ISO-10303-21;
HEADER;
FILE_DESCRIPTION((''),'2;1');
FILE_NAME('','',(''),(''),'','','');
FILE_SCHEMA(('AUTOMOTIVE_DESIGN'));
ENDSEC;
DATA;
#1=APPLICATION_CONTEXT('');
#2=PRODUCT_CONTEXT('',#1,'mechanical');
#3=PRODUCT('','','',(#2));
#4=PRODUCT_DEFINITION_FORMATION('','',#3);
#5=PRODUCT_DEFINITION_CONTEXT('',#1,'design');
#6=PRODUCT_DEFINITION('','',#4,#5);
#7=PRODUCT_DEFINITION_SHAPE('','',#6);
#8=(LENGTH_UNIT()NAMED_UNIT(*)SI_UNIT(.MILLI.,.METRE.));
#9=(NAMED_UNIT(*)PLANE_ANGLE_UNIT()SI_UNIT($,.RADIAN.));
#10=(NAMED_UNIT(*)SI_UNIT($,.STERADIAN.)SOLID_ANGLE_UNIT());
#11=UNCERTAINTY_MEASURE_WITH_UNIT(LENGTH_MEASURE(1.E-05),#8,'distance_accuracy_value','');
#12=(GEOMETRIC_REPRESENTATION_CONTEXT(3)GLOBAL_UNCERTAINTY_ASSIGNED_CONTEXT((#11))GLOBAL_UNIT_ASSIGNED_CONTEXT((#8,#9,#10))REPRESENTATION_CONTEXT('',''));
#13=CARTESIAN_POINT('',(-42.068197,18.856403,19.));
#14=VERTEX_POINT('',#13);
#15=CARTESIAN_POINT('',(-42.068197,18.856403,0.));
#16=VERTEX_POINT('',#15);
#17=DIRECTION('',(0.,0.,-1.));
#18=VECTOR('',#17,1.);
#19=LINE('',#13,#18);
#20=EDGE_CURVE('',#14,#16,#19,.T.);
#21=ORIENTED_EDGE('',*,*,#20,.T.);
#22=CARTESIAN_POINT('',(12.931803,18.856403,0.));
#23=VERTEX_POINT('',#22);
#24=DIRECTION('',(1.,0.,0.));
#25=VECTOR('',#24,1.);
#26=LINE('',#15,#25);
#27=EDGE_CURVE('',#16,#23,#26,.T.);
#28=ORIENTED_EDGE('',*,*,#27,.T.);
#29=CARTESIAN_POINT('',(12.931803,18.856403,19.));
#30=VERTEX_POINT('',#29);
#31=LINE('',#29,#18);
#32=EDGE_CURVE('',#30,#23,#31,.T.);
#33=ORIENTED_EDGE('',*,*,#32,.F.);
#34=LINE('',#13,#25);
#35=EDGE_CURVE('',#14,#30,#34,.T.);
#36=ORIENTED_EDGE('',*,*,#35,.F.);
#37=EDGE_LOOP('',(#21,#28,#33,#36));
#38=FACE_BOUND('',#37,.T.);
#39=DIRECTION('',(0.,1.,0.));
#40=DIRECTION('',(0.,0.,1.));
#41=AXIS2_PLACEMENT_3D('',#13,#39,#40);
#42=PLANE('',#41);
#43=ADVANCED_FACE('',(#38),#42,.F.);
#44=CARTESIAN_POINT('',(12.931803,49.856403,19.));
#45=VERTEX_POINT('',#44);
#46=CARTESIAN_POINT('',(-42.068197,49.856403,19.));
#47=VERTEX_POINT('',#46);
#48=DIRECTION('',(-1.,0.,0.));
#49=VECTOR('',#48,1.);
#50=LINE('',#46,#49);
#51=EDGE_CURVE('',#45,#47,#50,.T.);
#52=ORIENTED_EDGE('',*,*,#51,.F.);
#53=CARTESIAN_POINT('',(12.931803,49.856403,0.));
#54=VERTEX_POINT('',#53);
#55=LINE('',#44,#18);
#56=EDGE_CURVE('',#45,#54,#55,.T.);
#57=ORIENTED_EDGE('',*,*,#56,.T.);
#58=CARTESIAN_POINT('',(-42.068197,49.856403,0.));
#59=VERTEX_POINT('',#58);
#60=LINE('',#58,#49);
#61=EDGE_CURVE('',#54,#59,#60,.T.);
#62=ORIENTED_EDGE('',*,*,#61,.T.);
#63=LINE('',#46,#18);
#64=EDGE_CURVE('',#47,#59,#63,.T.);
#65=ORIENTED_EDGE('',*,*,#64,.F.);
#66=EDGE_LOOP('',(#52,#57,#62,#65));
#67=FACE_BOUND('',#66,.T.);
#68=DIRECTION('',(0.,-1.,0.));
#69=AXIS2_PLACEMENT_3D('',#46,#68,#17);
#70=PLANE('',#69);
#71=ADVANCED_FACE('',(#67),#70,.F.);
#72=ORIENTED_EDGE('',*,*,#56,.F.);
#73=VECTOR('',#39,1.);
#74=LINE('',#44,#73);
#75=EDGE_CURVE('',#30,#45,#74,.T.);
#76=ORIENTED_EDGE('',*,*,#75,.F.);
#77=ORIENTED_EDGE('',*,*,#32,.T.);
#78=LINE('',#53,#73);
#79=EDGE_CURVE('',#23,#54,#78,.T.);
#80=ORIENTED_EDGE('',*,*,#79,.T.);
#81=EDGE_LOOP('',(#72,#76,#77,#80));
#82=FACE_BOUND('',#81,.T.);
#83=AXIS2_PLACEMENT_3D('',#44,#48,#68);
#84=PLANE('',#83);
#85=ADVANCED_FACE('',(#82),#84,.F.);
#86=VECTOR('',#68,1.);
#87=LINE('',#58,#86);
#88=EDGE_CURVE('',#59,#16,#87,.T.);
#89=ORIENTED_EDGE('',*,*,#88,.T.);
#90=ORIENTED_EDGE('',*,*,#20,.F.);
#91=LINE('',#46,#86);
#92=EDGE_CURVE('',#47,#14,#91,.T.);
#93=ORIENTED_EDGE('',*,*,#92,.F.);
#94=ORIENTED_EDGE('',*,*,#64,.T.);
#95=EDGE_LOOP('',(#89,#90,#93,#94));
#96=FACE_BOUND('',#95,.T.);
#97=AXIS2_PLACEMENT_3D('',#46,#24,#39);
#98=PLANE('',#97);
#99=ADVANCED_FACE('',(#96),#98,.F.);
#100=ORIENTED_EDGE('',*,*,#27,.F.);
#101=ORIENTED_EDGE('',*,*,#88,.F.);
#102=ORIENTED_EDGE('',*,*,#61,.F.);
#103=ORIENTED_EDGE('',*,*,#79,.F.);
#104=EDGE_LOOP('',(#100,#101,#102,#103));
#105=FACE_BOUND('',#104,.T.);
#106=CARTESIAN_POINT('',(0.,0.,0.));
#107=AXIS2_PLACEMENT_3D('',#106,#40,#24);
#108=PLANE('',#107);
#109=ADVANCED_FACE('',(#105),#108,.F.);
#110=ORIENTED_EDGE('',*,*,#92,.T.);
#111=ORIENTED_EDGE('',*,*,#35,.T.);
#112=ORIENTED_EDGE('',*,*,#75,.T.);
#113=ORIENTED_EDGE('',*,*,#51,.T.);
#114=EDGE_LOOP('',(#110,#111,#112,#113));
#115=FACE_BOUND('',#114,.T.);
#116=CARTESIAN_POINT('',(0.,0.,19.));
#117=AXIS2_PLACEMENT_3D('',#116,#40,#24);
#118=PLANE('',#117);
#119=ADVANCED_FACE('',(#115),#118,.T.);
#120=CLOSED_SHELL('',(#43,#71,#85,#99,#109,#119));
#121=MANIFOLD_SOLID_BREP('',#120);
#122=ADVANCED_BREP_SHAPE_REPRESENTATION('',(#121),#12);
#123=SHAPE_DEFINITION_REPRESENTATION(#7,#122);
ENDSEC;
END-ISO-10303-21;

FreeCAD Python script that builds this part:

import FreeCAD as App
import Part
import Sketcher

V = App.Vector
Q = App.Units.Quantity

doc = App.newDocument("Part")
body = doc.addObject("PartDesign::Body", "Body")

# Sketch on XY plane
sketch1 = doc.addObject("Sketcher::SketchObject", "Sketch")
body.addObject(sketch1)
sketch1.AttachmentSupport = (doc.XY_Plane, [""])
sketch1.MapMode = "FlatFace"
sketch1.addGeometry(Part.LineSegment(V(-42.068197, 49.856403, 0), V(-42.068197, 18.856403, 0)), False)
sketch1.addGeometry(Part.LineSegment(V(-42.068197, 18.856403, 0), V(12.931803, 18.856403, 0)), False)
sketch1.addGeometry(Part.LineSegment(V(12.931803, 18.856403, 0), V(12.931803, 49.856403, 0)), False)
sketch1.addGeometry(Part.LineSegment(V(12.931803, 49.856403, 0), V(-42.068197, 49.856403, 0)), False)
sketch1.addConstraint(Sketcher.Constraint("Coincident", 0, 2, 1, 1))
sketch1.addConstraint(Sketcher.Constraint("Coincident", 1, 2, 2, 1))
sketch1.addConstraint(Sketcher.Constraint("Coincident", 2, 2, 3, 1))
sketch1.addConstraint(Sketcher.Constraint("Coincident", 3, 2, 0, 1))
sketch1.addConstraint(Sketcher.Constraint("Vertical", 0))
sketch1.addConstraint(Sketcher.Constraint("Horizontal", 1))
sketch1.addConstraint(Sketcher.Constraint("Vertical", 2))
sketch1.addConstraint(Sketcher.Constraint("Horizontal", 3))
sketch1.addConstraint(Sketcher.Constraint("DistanceX", 1, 1, 1, 2, Q("55 mm")))
sketch1.addConstraint(Sketcher.Constraint("DistanceY", 0, 2, 0, 1, Q("31 mm")))
sketch1.addConstraint(Sketcher.Constraint("DistanceX", 0, 2, -1, 1, Q("42.068197 mm")))
sketch1.addConstraint(Sketcher.Constraint("DistanceY", -1, 1, 0, 2, Q("18.856403 mm")))
pad1 = doc.addObject("PartDesign::Pad", "Pad")
body.addObject(pad1)
pad1.Profile = sketch1
pad1.Length = 19

doc.recompute()
